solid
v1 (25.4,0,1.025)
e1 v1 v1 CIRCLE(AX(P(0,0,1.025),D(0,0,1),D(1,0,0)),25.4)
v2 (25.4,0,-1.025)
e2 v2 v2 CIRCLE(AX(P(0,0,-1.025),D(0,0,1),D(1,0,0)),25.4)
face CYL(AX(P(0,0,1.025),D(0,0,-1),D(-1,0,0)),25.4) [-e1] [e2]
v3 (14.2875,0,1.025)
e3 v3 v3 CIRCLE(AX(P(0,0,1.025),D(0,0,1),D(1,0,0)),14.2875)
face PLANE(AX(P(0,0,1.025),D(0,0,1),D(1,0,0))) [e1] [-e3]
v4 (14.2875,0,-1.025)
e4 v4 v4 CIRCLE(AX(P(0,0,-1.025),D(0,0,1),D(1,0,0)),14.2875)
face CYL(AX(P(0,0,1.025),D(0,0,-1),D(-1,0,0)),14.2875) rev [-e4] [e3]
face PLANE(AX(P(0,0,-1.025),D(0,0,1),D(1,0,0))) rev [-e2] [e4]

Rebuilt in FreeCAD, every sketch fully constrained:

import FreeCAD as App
import Part
import Sketcher
from FreeCAD import Vector
Q = App.Units.Quantity

doc = App.newDocument("Part")
body = doc.addObject("PartDesign::Body", "Body")

# Sketch on XY plane
sketch1 = doc.addObject("Sketcher::SketchObject", "Sketch")
body.addObject(sketch1)
sketch1.AttachmentSupport = (doc.XY_Plane, [""])
sketch1.MapMode = "FlatFace"
sketch1.addGeometry([
    Part.Circle(Vector(0, 0, 0), Vector(0, 0, 1), 25),
    Part.Circle(Vector(0, 0, 0), Vector(0, 0, 1), 14),
], False)
sketch1.addConstraint([
    Sketcher.Constraint("Coincident", 0, 3, -1, 1),
    Sketcher.Constraint("Coincident", 1, 3, -1, 1),
    Sketcher.Constraint("Diameter", 0, Q("2 in")),
    Sketcher.Constraint("Diameter", 1, Q("1.125 in")),
])
pad1 = doc.addObject("PartDesign::Pad", "Pad")
body.addObject(pad1)
pad1.Profile = sketch1
pad1.Type = "TwoLengths"
pad1.Length = 1.025
pad1.Length2 = 1.025

doc.recompute()
